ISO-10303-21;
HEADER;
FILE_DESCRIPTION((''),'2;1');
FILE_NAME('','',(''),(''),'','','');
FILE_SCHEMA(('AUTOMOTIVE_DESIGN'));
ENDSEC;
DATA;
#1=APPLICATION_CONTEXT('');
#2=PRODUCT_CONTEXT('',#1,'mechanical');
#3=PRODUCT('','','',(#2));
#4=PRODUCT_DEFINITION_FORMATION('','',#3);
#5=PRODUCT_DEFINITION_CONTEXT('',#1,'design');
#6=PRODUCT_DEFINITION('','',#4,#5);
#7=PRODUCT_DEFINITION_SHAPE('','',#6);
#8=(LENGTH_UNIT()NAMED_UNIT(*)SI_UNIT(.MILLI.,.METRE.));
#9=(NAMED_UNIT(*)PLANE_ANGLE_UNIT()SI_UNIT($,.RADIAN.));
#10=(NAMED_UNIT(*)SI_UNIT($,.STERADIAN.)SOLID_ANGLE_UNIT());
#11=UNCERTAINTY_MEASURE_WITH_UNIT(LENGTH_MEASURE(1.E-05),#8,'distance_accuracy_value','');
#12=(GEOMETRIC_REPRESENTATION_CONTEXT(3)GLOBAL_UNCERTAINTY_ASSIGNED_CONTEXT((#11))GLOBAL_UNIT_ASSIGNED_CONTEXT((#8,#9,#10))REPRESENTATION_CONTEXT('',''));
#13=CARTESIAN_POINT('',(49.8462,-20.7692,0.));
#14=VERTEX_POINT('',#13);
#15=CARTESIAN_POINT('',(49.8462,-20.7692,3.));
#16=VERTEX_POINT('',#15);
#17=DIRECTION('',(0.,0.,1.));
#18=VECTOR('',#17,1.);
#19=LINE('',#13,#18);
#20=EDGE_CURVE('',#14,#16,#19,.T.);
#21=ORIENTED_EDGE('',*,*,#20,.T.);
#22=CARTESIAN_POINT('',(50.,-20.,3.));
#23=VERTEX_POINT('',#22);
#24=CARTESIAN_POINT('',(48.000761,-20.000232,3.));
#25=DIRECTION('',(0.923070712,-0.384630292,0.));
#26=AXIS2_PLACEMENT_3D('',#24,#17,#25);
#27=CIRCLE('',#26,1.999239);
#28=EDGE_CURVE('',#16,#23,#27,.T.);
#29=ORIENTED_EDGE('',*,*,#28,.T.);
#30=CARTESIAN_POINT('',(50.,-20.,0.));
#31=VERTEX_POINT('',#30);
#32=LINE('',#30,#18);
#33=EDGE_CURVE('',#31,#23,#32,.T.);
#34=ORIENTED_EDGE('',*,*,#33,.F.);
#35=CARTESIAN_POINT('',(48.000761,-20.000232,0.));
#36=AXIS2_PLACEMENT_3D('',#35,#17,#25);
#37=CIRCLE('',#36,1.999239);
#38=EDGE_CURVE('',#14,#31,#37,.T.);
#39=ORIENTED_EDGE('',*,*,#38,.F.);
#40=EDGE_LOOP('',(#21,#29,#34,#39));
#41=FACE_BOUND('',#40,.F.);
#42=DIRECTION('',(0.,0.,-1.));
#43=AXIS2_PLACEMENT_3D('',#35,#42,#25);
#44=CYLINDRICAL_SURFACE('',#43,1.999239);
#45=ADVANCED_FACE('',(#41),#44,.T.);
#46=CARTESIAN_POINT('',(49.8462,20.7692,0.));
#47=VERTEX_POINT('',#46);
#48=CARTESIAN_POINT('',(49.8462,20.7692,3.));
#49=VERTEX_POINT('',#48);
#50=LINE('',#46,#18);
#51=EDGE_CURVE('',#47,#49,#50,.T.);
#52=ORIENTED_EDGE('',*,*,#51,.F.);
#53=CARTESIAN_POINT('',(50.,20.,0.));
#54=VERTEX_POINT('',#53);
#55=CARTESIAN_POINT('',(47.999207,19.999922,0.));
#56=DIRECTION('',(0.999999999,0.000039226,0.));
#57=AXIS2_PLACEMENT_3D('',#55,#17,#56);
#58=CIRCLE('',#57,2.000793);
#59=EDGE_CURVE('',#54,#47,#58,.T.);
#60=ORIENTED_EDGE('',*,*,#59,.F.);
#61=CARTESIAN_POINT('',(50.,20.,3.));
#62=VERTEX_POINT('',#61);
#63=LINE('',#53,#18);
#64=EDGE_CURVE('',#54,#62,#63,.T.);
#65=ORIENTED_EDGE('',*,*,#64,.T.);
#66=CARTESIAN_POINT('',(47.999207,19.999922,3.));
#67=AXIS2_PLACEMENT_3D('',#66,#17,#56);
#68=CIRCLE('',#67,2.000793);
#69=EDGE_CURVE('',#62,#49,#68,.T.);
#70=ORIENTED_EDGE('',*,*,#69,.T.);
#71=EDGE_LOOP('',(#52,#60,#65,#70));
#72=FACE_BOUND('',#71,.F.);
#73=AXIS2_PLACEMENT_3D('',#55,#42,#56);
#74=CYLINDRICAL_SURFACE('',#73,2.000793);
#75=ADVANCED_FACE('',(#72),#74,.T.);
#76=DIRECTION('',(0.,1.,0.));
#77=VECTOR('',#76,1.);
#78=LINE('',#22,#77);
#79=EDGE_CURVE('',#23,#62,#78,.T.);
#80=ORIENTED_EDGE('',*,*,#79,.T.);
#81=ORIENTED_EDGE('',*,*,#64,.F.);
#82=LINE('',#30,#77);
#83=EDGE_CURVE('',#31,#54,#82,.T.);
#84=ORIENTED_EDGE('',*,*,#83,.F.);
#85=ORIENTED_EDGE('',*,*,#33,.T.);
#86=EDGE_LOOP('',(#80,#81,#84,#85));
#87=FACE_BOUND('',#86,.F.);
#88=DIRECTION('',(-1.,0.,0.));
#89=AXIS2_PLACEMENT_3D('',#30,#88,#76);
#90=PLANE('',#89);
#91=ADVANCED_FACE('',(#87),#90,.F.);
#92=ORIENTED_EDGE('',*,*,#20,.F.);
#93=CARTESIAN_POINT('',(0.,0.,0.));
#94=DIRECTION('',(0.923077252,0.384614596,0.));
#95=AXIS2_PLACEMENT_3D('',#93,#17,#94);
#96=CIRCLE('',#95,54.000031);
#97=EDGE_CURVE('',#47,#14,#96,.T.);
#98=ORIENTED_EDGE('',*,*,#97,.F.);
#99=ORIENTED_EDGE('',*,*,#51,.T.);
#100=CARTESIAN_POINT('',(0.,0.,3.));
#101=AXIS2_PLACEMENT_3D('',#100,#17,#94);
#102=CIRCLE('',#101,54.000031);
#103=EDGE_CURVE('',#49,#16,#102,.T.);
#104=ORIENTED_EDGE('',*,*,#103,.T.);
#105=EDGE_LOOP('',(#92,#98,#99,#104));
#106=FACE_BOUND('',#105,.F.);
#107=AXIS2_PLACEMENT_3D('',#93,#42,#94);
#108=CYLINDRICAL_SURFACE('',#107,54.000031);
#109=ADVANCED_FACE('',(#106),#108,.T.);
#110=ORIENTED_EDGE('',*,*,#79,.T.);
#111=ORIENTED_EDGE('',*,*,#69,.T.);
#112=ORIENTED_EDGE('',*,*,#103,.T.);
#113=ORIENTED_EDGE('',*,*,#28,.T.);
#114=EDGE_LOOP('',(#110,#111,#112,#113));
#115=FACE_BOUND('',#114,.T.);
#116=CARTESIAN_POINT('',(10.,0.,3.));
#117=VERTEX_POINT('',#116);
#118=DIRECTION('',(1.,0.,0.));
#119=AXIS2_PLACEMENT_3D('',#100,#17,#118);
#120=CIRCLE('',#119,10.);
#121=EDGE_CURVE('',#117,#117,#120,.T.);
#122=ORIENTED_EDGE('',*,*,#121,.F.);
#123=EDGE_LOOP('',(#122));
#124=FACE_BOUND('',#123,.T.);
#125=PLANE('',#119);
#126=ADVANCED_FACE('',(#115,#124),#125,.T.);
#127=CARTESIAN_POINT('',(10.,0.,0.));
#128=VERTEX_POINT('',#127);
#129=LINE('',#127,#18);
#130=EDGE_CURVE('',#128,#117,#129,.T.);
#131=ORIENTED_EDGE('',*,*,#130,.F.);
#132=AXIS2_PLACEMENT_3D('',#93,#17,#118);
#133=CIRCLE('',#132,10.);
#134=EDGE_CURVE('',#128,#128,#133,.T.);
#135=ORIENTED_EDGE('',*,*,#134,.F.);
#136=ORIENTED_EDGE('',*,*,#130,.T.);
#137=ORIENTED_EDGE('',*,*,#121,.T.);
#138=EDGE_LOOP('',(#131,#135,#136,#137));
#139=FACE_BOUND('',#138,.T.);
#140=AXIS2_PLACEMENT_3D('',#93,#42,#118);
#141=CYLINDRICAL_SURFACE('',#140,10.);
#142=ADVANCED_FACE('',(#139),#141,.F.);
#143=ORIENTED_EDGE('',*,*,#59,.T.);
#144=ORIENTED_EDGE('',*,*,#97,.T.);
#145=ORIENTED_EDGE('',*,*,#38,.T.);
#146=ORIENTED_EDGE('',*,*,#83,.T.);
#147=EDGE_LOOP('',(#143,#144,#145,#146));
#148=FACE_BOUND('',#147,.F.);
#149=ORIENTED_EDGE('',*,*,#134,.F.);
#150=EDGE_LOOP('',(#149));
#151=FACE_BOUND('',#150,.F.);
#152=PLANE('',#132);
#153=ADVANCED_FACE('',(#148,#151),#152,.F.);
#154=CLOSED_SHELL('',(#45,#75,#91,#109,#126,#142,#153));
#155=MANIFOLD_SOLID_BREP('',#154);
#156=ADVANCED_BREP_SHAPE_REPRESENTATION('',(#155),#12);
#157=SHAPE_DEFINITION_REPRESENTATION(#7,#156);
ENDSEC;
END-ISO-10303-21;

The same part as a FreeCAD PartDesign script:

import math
import FreeCAD as App
import Part
import Sketcher
Q = App.Units.Quantity

doc = App.newDocument("Part")
body = doc.addObject("PartDesign::Body", "Body")

# Sketch on XY plane
sketch1 = body.newObject("Sketcher::SketchObject", "Sketch")
sketch1.AttachmentSupport = (doc.getObject("XY_Plane"), [""])
sketch1.MapMode = "FlatFace"
sketch1.addGeometry(Part.ArcOfCircle(Part.Circle(App.Vector(48, -20, 0), App.Vector(0, 0, 1), 2), math.radians(-23), math.radians(0)), False)
sketch1.addGeometry(Part.LineSegment(App.Vector(50, -20, 0), App.Vector(50, 20, 0)), False)
sketch1.addGeometry(Part.ArcOfCircle(Part.Circle(App.Vector(48, 20, 0), App.Vector(0, 0, 1), 2), math.radians(0), math.radians(23)), False)
sketch1.addGeometry(Part.ArcOfCircle(Part.Circle(App.Vector(0, 0, 0), App.Vector(0, 0, 1), 54), math.radians(23), math.radians(337)), False)
sketch1.addGeometry(Part.Circle(App.Vector(0, 0, 0), App.Vector(0, 0, 1), 10), False)
sketch1.addConstraint(Sketcher.Constraint("Tangent", 0, 2, 1, 1))
sketch1.addConstraint(Sketcher.Constraint("Tangent", 1, 2, 2, 1))
sketch1.addConstraint(Sketcher.Constraint("Tangent", 2, 2, 3, 1))
sketch1.addConstraint(Sketcher.Constraint("Tangent", 3, 2, 0, 1))
sketch1.addConstraint(Sketcher.Constraint("Vertical", 1))
sketch1.addConstraint(Sketcher.Constraint("Coincident", 3, 3, -1, 1))
sketch1.addConstraint(Sketcher.Constraint("Coincident", 4, 3, -1, 1))
sketch1.addConstraint(Sketcher.Constraint("Equal", 0, 2))
sketch1.addConstraint(Sketcher.Constraint("Diameter", 4, Q("20 mm")))
sketch1.addConstraint(Sketcher.Constraint("Radius", 3, Q("54 mm")))
sketch1.addConstraint(Sketcher.Constraint("DistanceY", 0, 3, -1, 1, Q("20 mm")))
sketch1.addConstraint(Sketcher.Constraint("DistanceX", -1, 1, 0, 2, Q("50 mm")))
pad1 = body.newObject("PartDesign::Pad", "Pad")
pad1.Profile = sketch1
pad1.Length = 3

doc.recompute()
